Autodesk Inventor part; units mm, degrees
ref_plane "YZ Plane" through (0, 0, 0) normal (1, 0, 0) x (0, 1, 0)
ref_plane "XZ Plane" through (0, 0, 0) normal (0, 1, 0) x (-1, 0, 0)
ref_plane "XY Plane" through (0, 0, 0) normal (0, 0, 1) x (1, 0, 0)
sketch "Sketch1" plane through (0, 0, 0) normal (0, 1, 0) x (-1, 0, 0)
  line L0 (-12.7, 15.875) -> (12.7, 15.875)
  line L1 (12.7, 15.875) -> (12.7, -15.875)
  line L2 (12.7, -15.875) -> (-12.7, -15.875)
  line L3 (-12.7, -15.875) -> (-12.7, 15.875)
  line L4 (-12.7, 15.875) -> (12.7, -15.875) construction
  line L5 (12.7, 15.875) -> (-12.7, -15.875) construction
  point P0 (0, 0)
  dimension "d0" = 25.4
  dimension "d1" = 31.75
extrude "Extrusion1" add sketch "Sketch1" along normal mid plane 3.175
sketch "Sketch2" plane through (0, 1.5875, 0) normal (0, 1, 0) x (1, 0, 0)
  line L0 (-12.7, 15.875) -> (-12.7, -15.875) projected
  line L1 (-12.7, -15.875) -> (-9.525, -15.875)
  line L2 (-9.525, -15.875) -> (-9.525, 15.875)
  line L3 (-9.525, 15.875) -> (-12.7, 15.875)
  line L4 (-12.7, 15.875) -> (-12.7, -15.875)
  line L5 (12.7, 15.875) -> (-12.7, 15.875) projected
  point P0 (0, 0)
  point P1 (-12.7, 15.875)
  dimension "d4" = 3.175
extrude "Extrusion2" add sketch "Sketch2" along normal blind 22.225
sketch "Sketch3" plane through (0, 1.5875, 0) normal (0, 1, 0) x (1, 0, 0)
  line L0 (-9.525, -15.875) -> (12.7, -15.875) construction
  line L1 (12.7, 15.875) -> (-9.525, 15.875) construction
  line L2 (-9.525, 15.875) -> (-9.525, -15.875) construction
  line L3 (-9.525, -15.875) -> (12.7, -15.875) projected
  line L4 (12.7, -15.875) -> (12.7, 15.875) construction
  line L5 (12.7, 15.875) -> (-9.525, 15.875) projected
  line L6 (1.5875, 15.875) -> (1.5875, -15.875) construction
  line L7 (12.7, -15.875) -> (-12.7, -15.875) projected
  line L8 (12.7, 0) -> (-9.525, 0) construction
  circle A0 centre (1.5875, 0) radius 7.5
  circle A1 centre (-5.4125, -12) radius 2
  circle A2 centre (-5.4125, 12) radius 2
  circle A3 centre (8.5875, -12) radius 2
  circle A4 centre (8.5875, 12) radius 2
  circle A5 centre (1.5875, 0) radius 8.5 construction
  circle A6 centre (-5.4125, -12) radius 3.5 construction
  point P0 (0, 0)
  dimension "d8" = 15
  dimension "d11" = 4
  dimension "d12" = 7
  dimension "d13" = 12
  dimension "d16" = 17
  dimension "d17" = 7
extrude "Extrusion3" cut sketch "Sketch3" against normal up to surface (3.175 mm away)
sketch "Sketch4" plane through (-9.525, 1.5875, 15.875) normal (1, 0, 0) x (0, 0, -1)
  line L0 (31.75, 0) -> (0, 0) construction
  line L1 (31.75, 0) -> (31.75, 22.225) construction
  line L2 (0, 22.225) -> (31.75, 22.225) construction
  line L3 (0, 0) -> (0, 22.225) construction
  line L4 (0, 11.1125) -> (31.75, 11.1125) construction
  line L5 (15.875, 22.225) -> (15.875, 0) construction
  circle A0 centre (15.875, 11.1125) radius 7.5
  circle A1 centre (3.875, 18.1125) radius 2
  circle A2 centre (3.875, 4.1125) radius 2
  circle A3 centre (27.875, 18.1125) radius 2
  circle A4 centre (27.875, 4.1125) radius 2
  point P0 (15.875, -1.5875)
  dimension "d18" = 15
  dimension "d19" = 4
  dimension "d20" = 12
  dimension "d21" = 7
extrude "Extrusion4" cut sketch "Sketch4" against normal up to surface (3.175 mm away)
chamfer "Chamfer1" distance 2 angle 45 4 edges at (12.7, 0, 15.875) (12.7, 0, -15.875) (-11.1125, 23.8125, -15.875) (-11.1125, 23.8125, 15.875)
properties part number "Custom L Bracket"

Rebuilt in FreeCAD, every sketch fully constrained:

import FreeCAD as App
import Part
import Sketcher

V = App.Vector
Q = App.Units.Quantity


def edges_at(feature, points):
    """Names of the edges that pass closest to the given points."""
    edges = feature.Shape.Edges
    near = lambda p: min(range(len(edges)), key=lambda i: edges[i].distToShape(Part.Vertex(*p))[0])
    return sorted({f"Edge{near(p) + 1}" for p in points})


def add_polygon(sketch, points):
    """Adds a closed chain of lines whose ends are joined by coincident constraints."""
    first, n = sketch.GeometryCount, len(points)
    for a, b in zip(points, points[1:] + points[:1]):
        sketch.addGeometry(Part.LineSegment(App.Vector(*a, 0), App.Vector(*b, 0)), False)
    for i in range(n):
        sketch.addConstraint(Sketcher.Constraint("Coincident", first + i, 2, first + (i + 1) % n, 1))

doc = App.newDocument("Part")
body = doc.addObject("PartDesign::Body", "Body")

# Sketch on XZ plane
sketch1 = doc.addObject("Sketcher::SketchObject", "Sketch")
body.addObject(sketch1)
sketch1.AttachmentSupport = (doc.XZ_Plane, [""])
sketch1.MapMode = "FlatFace"
add_polygon(sketch1, [(-12.7, 15.875), (12.7, 15.875), (12.7, -15.875), (-12.7, -15.875)])  # lines 0-3
sketch1.addConstraint(Sketcher.Constraint("Horizontal", 0))
sketch1.addConstraint(Sketcher.Constraint("Vertical", 1))
sketch1.addConstraint(Sketcher.Constraint("Horizontal", 2))
sketch1.addConstraint(Sketcher.Constraint("Vertical", 3))
sketch1.addConstraint(Sketcher.Constraint("Symmetric", 0, 2, 2, 2, -1, 1))
sketch1.addConstraint(Sketcher.Constraint("DistanceX", 0, 1, 0, 2, Q("1 in")))
sketch1.addConstraint(Sketcher.Constraint("DistanceY", 1, 2, 1, 1, Q("1.25 in")))
pad1 = doc.addObject("PartDesign::Pad", "Pad")
body.addObject(pad1)
pad1.Profile = sketch1
pad1.Length = Q("0.125 in")
pad1.Midplane = True

# Sketch on XZ plane
sketch2 = doc.addObject("Sketcher::SketchObject", "Sketch001")
body.addObject(sketch2)
sketch2.AttachmentSupport = (doc.XZ_Plane, [""])
sketch2.MapMode = "FlatFace"
sketch2.AttachmentOffset = App.Placement(V(0, 0, -0.0625 * 25.4), App.Rotation())
add_polygon(sketch2, [(-9.525, -15.875), (-12.7, -15.875), (-12.7, 15.875), (-9.525, 15.875)])  # lines 0-3
sketch2.addConstraint(Sketcher.Constraint("Horizontal", 0))
sketch2.addConstraint(Sketcher.Constraint("Vertical", 1))
sketch2.addConstraint(Sketcher.Constraint("Horizontal", 2))
sketch2.addConstraint(Sketcher.Constraint("Vertical", 3))
sketch2.addConstraint(Sketcher.Constraint("DistanceX", 0, 2, 0, 1, Q("0.125 in")))
sketch2.addConstraint(Sketcher.Constraint("DistanceY", 1, 1, 1, 2, Q("1.25 in")))
sketch2.addConstraint(Sketcher.Constraint("DistanceX", 0, 2, -1, 1, Q("0.5 in")))
sketch2.addConstraint(Sketcher.Constraint("DistanceY", 0, 2, -1, 1, Q("0.625 in")))
pad2 = doc.addObject("PartDesign::Pad", "Pad001")
body.addObject(pad2)
pad2.Profile = sketch2
pad2.Length = Q("0.875 in")
pad2.Reversed = True

# Sketch on XZ plane
sketch3 = doc.addObject("Sketcher::SketchObject", "Sketch002")
body.addObject(sketch3)
sketch3.AttachmentSupport = (doc.XZ_Plane, [""])
sketch3.MapMode = "FlatFace"
sketch3.AttachmentOffset = App.Placement(V(0, 0, -0.0625 * 25.4), App.Rotation())
sketch3.addGeometry(Part.Circle(V(1.5875, 0, 0), V(0, 0, 1), 7.5), False)
sketch3.addGeometry(Part.Circle(V(-5.4125, 12, 0), V(0, 0, 1), 2), False)
sketch3.addGeometry(Part.Circle(V(-5.4125, -12, 0), V(0, 0, 1), 2), False)
sketch3.addGeometry(Part.Circle(V(8.5875, 12, 0), V(0, 0, 1), 2), False)
sketch3.addGeometry(Part.Circle(V(8.5875, -12, 0), V(0, 0, 1), 2), False)
sketch3.addConstraint(Sketcher.Constraint("Equal", 1, 2))
sketch3.addConstraint(Sketcher.Constraint("Equal", 2, 3))
sketch3.addConstraint(Sketcher.Constraint("Equal", 3, 4))
sketch3.addConstraint(Sketcher.Constraint("Symmetric", 1, 3, 2, 3, -1))
sketch3.addConstraint(Sketcher.Constraint("Symmetric", 3, 3, 4, 3, -1))
sketch3.addConstraint(Sketcher.Constraint("PointOnObject", 0, 3, -1))
sketch3.addConstraint(Sketcher.Constraint("Horizontal", 1, 3, 3, 3))
sketch3.addConstraint(Sketcher.Constraint("Diameter", 0, Q("15 mm")))
sketch3.addConstraint(Sketcher.Constraint("Diameter", 1, Q("4 mm")))
sketch3.addConstraint(Sketcher.Constraint("DistanceX", 1, 3, 0, 3, Q("0.2756 in")))
sketch3.addConstraint(Sketcher.Constraint("DistanceX", 0, 3, 3, 3, Q("0.2756 in")))
sketch3.addConstraint(Sketcher.Constraint("DistanceY", -1, 1, 1, 3, Q("12 mm")))
sketch3.addConstraint(Sketcher.Constraint("DistanceX", -1, 1, 0, 3, Q("0.0625 in")))
pocket1 = doc.addObject("PartDesign::Pocket", "Pocket")
body.addObject(pocket1)
pocket1.Profile = sketch3
pocket1.Length = Q("0.125 in")
pocket1.Reversed = True

# Sketch on YZ plane
sketch4 = doc.addObject("Sketcher::SketchObject", "Sketch003")
body.addObject(sketch4)
sketch4.AttachmentSupport = (doc.YZ_Plane, [""])
sketch4.MapMode = "FlatFace"
sketch4.AttachmentOffset = App.Placement(V(0, 0, -0.375 * 25.4), App.Rotation())
sketch4.addGeometry(Part.Circle(V(12.7, 0, 0), V(0, 0, 1), 7.5), False)
sketch4.addGeometry(Part.Circle(V(19.7, 12, 0), V(0, 0, 1), 2), False)
sketch4.addGeometry(Part.Circle(V(5.7, 12, 0), V(0, 0, 1), 2), False)
sketch4.addGeometry(Part.Circle(V(19.7, -12, 0), V(0, 0, 1), 2), False)
sketch4.addGeometry(Part.Circle(V(5.7, -12, 0), V(0, 0, 1), 2), False)
sketch4.addConstraint(Sketcher.Constraint("Equal", 1, 2))
sketch4.addConstraint(Sketcher.Constraint("Equal", 2, 3))
sketch4.addConstraint(Sketcher.Constraint("Equal", 3, 4))
sketch4.addConstraint(Sketcher.Constraint("Symmetric", 1, 3, 3, 3, -1))
sketch4.addConstraint(Sketcher.Constraint("Symmetric", 2, 3, 4, 3, -1))
sketch4.addConstraint(Sketcher.Constraint("PointOnObject", 0, 3, -1))
sketch4.addConstraint(Sketcher.Constraint("Horizontal", 1, 3, 2, 3))
sketch4.addConstraint(Sketcher.Constraint("Diameter", 0, Q("15 mm")))
sketch4.addConstraint(Sketcher.Constraint("Diameter", 1, Q("4 mm")))
sketch4.addConstraint(Sketcher.Constraint("DistanceX", -1, 1, 0, 3, Q("0.5 in")))
sketch4.addConstraint(Sketcher.Constraint("DistanceX", 0, 3, 1, 3, Q("0.2756 in")))
sketch4.addConstraint(Sketcher.Constraint("DistanceX", 2, 3, 0, 3, Q("0.2756 in")))
sketch4.addConstraint(Sketcher.Constraint("DistanceY", -1, 1, 1, 3, Q("12 mm")))
pocket2 = doc.addObject("PartDesign::Pocket", "Pocket001")
body.addObject(pocket2)
pocket2.Profile = sketch4
pocket2.Length = Q("0.125 in")
doc.recompute()

chamfer = doc.addObject("PartDesign::Chamfer", "Chamfer")
body.addObject(chamfer)
chamfer.Base = (pocket2, edges_at(pocket2, [
    (12.7, 0, 15.875),
    (12.7, 0, -15.875),
    (-11.113, 23.812, -15.875),
    (-11.113, 23.812, 15.875),
]))
chamfer.Size = 2

doc.recompute()
